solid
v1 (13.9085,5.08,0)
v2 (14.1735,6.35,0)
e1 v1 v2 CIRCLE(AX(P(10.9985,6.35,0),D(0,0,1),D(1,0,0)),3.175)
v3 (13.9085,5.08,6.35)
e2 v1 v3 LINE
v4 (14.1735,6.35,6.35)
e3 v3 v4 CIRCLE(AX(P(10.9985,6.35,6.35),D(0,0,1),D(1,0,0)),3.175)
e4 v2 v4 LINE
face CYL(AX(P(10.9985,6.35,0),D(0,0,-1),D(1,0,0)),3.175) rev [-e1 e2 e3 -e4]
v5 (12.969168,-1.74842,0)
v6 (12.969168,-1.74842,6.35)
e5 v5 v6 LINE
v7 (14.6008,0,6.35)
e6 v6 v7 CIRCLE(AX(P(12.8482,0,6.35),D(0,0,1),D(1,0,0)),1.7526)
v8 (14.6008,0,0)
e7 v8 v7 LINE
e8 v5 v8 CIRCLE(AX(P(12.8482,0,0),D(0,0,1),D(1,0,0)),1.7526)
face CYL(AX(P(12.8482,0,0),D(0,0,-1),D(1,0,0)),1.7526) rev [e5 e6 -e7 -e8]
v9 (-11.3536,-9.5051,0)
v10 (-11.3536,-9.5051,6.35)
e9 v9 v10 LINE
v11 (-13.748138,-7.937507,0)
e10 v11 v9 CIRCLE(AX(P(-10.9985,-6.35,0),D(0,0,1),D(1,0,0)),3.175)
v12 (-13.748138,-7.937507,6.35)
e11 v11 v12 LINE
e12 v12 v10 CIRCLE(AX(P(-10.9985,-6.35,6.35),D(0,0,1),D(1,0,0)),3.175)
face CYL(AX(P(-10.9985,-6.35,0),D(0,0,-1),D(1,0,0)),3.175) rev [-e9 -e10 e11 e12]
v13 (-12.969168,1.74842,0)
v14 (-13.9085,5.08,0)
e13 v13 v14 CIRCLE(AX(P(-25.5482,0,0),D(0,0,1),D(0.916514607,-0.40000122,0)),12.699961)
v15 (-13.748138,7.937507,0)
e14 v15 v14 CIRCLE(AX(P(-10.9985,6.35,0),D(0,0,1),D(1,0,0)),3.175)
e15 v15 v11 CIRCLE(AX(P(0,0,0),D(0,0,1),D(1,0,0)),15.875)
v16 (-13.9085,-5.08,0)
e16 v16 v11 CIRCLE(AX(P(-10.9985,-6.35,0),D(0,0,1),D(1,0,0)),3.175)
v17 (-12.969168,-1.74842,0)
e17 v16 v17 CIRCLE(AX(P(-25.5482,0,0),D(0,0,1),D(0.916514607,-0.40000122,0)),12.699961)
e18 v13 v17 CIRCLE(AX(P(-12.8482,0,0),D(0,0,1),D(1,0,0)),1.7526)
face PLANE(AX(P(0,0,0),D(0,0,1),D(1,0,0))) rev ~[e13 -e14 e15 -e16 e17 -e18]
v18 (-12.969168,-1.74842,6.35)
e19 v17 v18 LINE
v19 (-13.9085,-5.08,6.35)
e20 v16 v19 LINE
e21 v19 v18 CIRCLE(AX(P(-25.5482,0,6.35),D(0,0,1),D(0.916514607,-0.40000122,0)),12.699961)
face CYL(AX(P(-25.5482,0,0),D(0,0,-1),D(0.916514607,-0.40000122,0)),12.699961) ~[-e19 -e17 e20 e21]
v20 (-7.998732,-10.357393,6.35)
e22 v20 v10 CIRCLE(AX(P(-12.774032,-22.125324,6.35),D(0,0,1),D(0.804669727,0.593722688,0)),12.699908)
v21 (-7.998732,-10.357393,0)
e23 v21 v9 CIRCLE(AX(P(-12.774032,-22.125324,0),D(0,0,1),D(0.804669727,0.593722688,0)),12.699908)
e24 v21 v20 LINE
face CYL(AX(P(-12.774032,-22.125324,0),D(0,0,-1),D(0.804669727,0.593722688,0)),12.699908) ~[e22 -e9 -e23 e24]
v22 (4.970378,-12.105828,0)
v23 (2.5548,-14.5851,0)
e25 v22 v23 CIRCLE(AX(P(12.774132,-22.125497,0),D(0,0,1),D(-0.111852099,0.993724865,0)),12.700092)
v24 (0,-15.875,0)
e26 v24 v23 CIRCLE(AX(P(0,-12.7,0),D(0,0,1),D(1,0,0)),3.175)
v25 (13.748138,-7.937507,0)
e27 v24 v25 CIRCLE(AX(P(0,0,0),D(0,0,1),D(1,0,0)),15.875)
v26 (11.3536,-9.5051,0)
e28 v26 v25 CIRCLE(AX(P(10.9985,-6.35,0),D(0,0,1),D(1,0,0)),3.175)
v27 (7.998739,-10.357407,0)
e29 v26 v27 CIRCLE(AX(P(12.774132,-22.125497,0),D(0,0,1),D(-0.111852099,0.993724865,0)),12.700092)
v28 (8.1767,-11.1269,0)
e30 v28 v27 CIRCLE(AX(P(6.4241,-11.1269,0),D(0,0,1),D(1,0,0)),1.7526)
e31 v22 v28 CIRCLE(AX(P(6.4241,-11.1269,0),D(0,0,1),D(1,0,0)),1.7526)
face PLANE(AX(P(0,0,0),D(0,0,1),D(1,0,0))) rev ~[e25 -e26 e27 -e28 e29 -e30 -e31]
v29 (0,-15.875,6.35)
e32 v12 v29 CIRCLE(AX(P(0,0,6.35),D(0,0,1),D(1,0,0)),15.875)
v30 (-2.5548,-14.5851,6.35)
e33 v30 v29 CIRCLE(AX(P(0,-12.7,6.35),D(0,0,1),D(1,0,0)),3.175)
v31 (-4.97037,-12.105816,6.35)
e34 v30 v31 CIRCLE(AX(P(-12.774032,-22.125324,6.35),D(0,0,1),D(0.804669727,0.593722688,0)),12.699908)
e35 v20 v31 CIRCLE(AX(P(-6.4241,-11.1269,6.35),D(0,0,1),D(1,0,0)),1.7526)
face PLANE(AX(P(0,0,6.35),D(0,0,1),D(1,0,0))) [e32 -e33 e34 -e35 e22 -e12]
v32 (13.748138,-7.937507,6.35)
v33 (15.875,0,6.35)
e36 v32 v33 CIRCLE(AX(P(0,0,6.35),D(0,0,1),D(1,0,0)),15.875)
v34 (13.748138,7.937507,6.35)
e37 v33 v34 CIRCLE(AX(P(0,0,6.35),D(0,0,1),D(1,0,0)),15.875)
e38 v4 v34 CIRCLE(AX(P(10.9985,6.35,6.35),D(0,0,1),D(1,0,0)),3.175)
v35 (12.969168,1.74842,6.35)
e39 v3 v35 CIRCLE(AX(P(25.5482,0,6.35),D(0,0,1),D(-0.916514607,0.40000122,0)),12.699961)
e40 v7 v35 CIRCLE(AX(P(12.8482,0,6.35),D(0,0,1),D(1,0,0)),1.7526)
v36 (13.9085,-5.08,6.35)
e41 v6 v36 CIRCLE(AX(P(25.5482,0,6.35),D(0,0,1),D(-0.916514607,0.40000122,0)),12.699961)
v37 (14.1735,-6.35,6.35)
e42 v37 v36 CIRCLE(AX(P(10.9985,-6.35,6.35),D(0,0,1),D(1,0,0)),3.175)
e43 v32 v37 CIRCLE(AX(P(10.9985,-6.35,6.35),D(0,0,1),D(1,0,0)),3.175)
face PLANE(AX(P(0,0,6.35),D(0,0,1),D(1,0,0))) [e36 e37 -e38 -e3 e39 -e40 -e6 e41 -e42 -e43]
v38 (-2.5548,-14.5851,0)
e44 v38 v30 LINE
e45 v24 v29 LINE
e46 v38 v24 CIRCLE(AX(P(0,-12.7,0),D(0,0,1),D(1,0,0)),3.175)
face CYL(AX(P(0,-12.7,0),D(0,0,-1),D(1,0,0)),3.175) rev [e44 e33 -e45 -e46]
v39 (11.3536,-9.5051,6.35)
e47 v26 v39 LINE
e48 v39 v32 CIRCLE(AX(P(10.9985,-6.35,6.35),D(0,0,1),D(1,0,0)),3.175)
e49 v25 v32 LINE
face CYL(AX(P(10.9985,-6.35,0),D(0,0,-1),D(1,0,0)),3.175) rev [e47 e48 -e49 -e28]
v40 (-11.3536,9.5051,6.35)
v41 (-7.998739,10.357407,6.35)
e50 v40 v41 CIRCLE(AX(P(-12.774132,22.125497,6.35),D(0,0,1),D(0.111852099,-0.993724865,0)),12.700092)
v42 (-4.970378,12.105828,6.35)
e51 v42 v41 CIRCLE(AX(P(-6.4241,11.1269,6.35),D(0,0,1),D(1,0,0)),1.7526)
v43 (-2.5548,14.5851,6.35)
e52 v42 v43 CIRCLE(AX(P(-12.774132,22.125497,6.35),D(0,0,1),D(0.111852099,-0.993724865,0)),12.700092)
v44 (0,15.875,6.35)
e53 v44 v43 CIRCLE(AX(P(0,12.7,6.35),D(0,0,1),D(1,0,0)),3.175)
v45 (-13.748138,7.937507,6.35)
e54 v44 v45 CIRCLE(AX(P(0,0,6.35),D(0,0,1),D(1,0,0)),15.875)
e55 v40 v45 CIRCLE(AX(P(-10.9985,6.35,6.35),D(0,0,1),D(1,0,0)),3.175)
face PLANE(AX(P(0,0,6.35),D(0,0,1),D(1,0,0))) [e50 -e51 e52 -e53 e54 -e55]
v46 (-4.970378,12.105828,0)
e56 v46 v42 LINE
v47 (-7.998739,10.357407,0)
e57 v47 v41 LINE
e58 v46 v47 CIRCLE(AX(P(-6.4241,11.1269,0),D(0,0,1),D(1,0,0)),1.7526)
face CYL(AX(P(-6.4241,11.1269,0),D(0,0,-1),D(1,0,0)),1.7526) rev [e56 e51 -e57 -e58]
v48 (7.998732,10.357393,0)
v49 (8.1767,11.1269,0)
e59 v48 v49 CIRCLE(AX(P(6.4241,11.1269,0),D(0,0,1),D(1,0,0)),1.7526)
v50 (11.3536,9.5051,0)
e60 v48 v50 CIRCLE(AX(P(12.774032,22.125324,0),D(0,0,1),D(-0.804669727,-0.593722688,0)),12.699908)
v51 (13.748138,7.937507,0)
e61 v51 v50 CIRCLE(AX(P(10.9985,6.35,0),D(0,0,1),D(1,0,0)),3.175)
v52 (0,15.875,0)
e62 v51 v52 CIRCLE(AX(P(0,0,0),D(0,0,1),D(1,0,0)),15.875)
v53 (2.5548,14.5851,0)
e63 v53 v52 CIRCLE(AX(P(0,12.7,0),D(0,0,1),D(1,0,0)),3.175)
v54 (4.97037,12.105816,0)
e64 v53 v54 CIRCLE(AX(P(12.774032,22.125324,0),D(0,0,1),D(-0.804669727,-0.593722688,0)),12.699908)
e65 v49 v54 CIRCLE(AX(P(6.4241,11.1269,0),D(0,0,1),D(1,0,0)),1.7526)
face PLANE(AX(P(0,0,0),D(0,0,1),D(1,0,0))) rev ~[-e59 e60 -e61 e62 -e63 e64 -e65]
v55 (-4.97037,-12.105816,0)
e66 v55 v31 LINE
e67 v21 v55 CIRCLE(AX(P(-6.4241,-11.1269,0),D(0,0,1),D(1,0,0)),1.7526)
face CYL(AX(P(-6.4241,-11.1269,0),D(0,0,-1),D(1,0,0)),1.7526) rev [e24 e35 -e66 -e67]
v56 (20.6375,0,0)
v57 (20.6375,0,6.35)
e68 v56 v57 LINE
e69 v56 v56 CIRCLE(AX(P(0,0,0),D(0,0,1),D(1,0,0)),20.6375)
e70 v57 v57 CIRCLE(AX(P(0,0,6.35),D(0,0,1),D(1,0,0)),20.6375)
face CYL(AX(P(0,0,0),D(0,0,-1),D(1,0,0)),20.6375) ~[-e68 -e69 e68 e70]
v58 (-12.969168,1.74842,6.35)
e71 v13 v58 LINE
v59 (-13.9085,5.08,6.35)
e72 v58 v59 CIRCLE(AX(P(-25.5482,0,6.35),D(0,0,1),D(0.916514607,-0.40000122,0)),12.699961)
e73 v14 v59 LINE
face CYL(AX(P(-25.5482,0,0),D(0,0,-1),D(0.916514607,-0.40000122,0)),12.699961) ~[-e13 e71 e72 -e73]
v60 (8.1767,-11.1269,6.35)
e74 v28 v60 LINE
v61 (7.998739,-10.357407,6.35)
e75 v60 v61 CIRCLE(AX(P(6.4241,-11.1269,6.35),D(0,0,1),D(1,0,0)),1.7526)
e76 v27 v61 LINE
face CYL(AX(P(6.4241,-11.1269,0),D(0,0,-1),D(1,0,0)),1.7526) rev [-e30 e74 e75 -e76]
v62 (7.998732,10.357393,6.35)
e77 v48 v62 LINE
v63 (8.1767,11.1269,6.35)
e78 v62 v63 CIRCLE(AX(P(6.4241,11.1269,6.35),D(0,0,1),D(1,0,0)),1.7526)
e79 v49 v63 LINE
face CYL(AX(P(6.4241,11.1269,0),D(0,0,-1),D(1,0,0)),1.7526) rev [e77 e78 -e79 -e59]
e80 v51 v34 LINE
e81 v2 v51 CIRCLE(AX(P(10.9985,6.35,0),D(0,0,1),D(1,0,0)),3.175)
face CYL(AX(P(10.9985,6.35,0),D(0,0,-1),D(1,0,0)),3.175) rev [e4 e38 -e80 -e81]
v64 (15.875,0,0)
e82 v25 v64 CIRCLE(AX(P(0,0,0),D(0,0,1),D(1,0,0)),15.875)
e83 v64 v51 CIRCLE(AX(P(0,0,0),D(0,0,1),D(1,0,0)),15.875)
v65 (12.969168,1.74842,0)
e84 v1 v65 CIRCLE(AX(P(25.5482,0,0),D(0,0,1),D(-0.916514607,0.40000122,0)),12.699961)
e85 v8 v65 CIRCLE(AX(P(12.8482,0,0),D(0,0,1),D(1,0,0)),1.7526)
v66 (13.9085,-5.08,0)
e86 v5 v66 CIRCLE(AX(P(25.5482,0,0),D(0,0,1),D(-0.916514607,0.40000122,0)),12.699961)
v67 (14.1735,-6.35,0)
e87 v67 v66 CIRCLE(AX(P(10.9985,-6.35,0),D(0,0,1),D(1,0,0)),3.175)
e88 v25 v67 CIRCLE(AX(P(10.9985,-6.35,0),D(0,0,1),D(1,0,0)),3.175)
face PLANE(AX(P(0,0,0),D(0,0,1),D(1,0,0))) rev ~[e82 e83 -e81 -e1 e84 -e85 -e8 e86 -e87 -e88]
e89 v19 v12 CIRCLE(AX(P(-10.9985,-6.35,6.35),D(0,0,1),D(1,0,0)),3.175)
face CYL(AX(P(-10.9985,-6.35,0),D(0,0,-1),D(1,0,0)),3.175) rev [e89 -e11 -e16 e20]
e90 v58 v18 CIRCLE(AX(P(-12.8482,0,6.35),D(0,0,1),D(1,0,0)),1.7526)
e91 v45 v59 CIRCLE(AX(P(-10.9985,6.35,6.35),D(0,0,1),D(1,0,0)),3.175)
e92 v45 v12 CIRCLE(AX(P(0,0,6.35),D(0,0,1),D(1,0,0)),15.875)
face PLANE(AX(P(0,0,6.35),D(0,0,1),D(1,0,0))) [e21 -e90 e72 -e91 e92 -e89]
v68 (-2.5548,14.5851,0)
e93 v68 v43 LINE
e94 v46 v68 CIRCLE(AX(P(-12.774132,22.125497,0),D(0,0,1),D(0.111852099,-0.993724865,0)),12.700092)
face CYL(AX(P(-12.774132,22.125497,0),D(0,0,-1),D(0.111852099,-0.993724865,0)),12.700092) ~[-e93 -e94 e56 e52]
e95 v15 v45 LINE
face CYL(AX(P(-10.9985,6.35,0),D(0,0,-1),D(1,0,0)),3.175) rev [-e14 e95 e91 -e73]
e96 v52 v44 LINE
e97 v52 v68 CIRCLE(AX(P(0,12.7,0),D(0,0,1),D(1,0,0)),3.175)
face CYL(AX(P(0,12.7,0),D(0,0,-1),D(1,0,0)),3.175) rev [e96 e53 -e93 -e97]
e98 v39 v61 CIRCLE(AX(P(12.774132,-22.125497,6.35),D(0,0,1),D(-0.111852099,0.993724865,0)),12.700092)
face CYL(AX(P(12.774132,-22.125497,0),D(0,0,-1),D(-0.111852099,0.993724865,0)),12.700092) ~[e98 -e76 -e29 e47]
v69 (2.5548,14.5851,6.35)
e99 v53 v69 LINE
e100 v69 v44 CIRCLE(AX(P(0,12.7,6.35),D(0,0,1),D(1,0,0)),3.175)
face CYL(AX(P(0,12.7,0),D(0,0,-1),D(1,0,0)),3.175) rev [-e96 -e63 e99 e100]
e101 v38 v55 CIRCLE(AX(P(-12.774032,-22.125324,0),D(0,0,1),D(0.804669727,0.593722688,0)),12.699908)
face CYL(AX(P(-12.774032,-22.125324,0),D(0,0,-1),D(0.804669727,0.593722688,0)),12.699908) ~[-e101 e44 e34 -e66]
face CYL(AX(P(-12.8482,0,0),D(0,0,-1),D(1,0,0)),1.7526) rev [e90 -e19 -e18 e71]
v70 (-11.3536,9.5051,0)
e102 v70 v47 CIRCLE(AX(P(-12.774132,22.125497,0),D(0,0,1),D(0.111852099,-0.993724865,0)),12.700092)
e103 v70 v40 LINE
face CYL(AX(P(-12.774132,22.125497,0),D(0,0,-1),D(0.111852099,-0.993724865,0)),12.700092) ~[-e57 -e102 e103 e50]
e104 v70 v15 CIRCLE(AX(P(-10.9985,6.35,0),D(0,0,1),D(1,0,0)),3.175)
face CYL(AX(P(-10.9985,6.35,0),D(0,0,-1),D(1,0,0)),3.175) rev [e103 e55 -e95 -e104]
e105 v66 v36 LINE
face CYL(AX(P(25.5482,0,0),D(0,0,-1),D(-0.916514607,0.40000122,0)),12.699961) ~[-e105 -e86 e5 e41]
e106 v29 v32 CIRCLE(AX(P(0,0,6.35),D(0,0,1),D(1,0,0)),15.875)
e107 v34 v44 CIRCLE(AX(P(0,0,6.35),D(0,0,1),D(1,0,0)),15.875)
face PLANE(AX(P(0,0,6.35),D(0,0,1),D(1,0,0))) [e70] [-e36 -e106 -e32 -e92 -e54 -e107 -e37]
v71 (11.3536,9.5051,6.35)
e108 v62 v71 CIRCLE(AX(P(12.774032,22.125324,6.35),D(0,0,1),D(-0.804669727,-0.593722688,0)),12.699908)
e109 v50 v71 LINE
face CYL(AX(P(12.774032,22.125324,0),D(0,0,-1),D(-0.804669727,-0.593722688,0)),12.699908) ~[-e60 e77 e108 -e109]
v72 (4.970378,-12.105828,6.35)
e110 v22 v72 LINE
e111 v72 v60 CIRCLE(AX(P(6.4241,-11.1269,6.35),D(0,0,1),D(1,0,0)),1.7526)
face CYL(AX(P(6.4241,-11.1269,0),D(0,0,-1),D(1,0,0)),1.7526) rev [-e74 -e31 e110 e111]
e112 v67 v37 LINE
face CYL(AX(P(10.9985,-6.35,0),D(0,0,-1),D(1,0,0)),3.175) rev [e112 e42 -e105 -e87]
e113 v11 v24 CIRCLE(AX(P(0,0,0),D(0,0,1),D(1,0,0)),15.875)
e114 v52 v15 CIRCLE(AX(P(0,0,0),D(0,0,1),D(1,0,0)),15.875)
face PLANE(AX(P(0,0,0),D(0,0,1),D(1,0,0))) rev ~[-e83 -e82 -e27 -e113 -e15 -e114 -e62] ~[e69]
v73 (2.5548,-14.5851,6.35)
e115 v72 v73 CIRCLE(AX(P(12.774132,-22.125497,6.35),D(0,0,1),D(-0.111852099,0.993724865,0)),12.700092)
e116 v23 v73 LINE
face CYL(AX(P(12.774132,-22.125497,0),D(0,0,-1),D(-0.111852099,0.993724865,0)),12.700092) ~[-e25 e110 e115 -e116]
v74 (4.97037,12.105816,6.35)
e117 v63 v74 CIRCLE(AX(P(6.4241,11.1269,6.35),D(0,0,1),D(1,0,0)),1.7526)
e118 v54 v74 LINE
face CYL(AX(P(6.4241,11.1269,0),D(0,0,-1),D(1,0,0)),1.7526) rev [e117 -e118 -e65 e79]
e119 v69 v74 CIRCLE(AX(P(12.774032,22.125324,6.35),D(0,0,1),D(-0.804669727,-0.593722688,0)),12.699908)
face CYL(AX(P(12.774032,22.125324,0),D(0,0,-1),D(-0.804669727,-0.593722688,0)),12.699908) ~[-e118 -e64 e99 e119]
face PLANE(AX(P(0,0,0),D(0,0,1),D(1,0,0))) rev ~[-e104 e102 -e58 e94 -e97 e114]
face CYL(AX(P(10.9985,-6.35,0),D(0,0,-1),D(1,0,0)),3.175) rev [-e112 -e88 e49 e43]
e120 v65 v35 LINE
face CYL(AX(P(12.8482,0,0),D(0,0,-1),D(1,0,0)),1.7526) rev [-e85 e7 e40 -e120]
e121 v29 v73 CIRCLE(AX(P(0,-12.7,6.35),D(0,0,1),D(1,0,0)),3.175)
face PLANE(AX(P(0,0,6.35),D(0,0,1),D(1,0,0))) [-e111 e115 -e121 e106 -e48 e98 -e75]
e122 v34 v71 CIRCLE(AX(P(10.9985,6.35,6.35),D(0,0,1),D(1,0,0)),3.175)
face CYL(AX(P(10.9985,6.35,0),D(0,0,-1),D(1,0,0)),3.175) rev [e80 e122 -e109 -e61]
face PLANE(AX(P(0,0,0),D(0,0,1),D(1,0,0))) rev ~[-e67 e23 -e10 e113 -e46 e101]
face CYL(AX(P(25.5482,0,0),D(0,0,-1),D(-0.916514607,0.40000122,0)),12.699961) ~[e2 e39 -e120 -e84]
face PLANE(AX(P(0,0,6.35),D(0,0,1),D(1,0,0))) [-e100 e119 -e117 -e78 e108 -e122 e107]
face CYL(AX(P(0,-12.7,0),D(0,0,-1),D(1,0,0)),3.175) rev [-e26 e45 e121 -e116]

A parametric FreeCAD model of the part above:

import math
import FreeCAD as App
import Part
import Sketcher
from FreeCAD import Vector
Q = App.Units.Quantity

doc = App.newDocument("Part")
body = doc.addObject("PartDesign::Body", "Body")

sketch1 = body.newObject("Sketcher::SketchObject", "Sketch")
sketch1.AttachmentSupport = (doc.getObject("XY_Plane"), [""])
sketch1.MapMode = "FlatFace"
sketch1.addGeometry(Part.Circle(Vector(0, 0, 0), Vector(0, 0, 1), 20.6), False)
sketch1.addGeometry(Part.ArcOfCircle(Part.Circle(Vector(25.5, 0, 0), Vector(0, 0, 1), 12.7), math.radians(156.42), math.radians(172.09)), False)
sketch1.addGeometry(Part.ArcOfCircle(Part.Circle(Vector(12.8, 0, 0), Vector(0, 0, 1), 1.8), math.radians(-86), math.radians(86)), False)
sketch1.addGeometry(Part.ArcOfCircle(Part.Circle(Vector(25.5, 0, 0), Vector(0, 0, 1), 12.7), math.radians(-172.09), math.radians(-156.42)), False)
sketch1.addGeometry(Part.ArcOfCircle(Part.Circle(Vector(11, -6.3, 0), Vector(0, 0, 1), 3.2), math.radians(-84), math.radians(24)), False)
sketch1.addGeometry(Part.ArcOfCircle(Part.Circle(Vector(12.8, -22.1, 0), Vector(0, 0, 1), 12.7), math.radians(96.42), math.radians(112.09)), False)
sketch1.addGeometry(Part.ArcOfCircle(Part.Circle(Vector(6.4, -11.1, 0), Vector(0, 0, 1), 1.8), math.radians(-146), math.radians(26)), False)
sketch1.addGeometry(Part.ArcOfCircle(Part.Circle(Vector(12.8, -22.1, 0), Vector(0, 0, 1), 12.7), math.radians(127.91), math.radians(143.58)), False)
sketch1.addGeometry(Part.ArcOfCircle(Part.Circle(Vector(0, -12.7, 0), Vector(0, 0, 1), 3.2), math.radians(-144), math.radians(-36)), False)
sketch1.addGeometry(Part.ArcOfCircle(Part.Circle(Vector(-12.8, -22.1, 0), Vector(0, 0, 1), 12.7), math.radians(36.42), math.radians(52.09)), False)
sketch1.addGeometry(Part.ArcOfCircle(Part.Circle(Vector(-6.4, -11.1, 0), Vector(0, 0, 1), 1.8), math.radians(154), math.radians(326)), False)
sketch1.addGeometry(Part.ArcOfCircle(Part.Circle(Vector(-12.8, -22.1, 0), Vector(0, 0, 1), 12.7), math.radians(67.91), math.radians(83.58)), False)
sketch1.addGeometry(Part.ArcOfCircle(Part.Circle(Vector(-11, -6.3, 0), Vector(0, 0, 1), 3.2), math.radians(156), math.radians(264)), False)
sketch1.addGeometry(Part.ArcOfCircle(Part.Circle(Vector(-25.5, 0, 0), Vector(0, 0, 1), 12.7), math.radians(-23.58), math.radians(-7.91)), False)
sketch1.addGeometry(Part.ArcOfCircle(Part.Circle(Vector(-12.8, 0, 0), Vector(0, 0, 1), 1.8), math.radians(94), math.radians(266)), False)
sketch1.addGeometry(Part.ArcOfCircle(Part.Circle(Vector(-25.5, 0, 0), Vector(0, 0, 1), 12.7), math.radians(7.91), math.radians(23.58)), False)
sketch1.addGeometry(Part.ArcOfCircle(Part.Circle(Vector(-11, 6.3, 0), Vector(0, 0, 1), 3.2), math.radians(96), math.radians(204)), False)
sketch1.addGeometry(Part.ArcOfCircle(Part.Circle(Vector(-12.8, 22.1, 0), Vector(0, 0, 1), 12.7), math.radians(-83.58), math.radians(-67.91)), False)
sketch1.addGeometry(Part.ArcOfCircle(Part.Circle(Vector(-6.4, 11.1, 0), Vector(0, 0, 1), 1.8), math.radians(34), math.radians(206)), False)
sketch1.addGeometry(Part.ArcOfCircle(Part.Circle(Vector(-12.8, 22.1, 0), Vector(0, 0, 1), 12.7), math.radians(-52.09), math.radians(-36.42)), False)
sketch1.addGeometry(Part.ArcOfCircle(Part.Circle(Vector(0, 12.7, 0), Vector(0, 0, 1), 3.2), math.radians(36), math.radians(144)), False)
sketch1.addGeometry(Part.ArcOfCircle(Part.Circle(Vector(12.8, 22.1, 0), Vector(0, 0, 1), 12.7), math.radians(-143.58), math.radians(-127.91)), False)
sketch1.addGeometry(Part.ArcOfCircle(Part.Circle(Vector(6.4, 11.1, 0), Vector(0, 0, 1), 1.8), math.radians(-26), math.radians(146)), False)
sketch1.addGeometry(Part.ArcOfCircle(Part.Circle(Vector(12.8, 22.1, 0), Vector(0, 0, 1), 12.7), math.radians(-112.09), math.radians(-96.42)), False)
sketch1.addGeometry(Part.ArcOfCircle(Part.Circle(Vector(11, 6.3, 0), Vector(0, 0, 1), 3.2), math.radians(-24), math.radians(84)), False)
sketch1.addConstraint(Sketcher.Constraint("Coincident", 1, 2, 2, 2))
sketch1.addConstraint(Sketcher.Constraint("Coincident", 2, 1, 3, 1))
sketch1.addConstraint(Sketcher.Constraint("Tangent", 3, 2, 4, 2))
sketch1.addConstraint(Sketcher.Constraint("Tangent", 4, 1, 5, 1))
sketch1.addConstraint(Sketcher.Constraint("Coincident", 5, 2, 6, 2))
sketch1.addConstraint(Sketcher.Constraint("Coincident", 6, 1, 7, 1))
sketch1.addConstraint(Sketcher.Constraint("Tangent", 7, 2, 8, 2))
sketch1.addConstraint(Sketcher.Constraint("Tangent", 8, 1, 9, 1))
sketch1.addConstraint(Sketcher.Constraint("Coincident", 9, 2, 10, 2))
sketch1.addConstraint(Sketcher.Constraint("Coincident", 10, 1, 11, 1))
sketch1.addConstraint(Sketcher.Constraint("Tangent", 11, 2, 12, 2))
sketch1.addConstraint(Sketcher.Constraint("Tangent", 12, 1, 13, 1))
sketch1.addConstraint(Sketcher.Constraint("Coincident", 13, 2, 14, 2))
sketch1.addConstraint(Sketcher.Constraint("Coincident", 14, 1, 15, 1))
sketch1.addConstraint(Sketcher.Constraint("Tangent", 15, 2, 16, 2))
sketch1.addConstraint(Sketcher.Constraint("Tangent", 16, 1, 17, 1))
sketch1.addConstraint(Sketcher.Constraint("Coincident", 17, 2, 18, 2))
sketch1.addConstraint(Sketcher.Constraint("Coincident", 18, 1, 19, 1))
sketch1.addConstraint(Sketcher.Constraint("Tangent", 19, 2, 20, 2))
sketch1.addConstraint(Sketcher.Constraint("Tangent", 20, 1, 21, 1))
sketch1.addConstraint(Sketcher.Constraint("Coincident", 21, 2, 22, 2))
sketch1.addConstraint(Sketcher.Constraint("Coincident", 22, 1, 23, 1))
sketch1.addConstraint(Sketcher.Constraint("Tangent", 23, 2, 24, 2))
sketch1.addConstraint(Sketcher.Constraint("Tangent", 24, 1, 1, 1))
sketch1.addConstraint(Sketcher.Constraint("Coincident", 0, 3, -1, 1))
sketch1.addConstraint(Sketcher.Constraint("Coincident", 3, 3, 1, 3))
sketch1.addConstraint(Sketcher.Constraint("Coincident", 7, 3, 5, 3))
sketch1.addConstraint(Sketcher.Constraint("Coincident", 11, 3, 9, 3))
sketch1.addConstraint(Sketcher.Constraint("Coincident", 15, 3, 13, 3))
sketch1.addConstraint(Sketcher.Constraint("Coincident", 19, 3, 17, 3))
sketch1.addConstraint(Sketcher.Constraint("Coincident", 23, 3, 21, 3))
sketch1.addConstraint(Sketcher.Constraint("Equal", 1, 3))
sketch1.addConstraint(Sketcher.Constraint("Equal", 3, 5))
sketch1.addConstraint(Sketcher.Constraint("Equal", 2, 6))
sketch1.addConstraint(Sketcher.Constraint("Equal", 5, 7))
sketch1.addConstraint(Sketcher.Constraint("Equal", 4, 8))
sketch1.addConstraint(Sketcher.Constraint("Equal", 7, 9))
sketch1.addConstraint(Sketcher.Constraint("Equal", 6, 10))
sketch1.addConstraint(Sketcher.Constraint("Equal", 9, 11))
sketch1.addConstraint(Sketcher.Constraint("Equal", 8, 12))
sketch1.addConstraint(Sketcher.Constraint("Equal", 11, 13))
sketch1.addConstraint(Sketcher.Constraint("Equal", 10, 14))
sketch1.addConstraint(Sketcher.Constraint("Equal", 13, 15))
sketch1.addConstraint(Sketcher.Constraint("Equal", 12, 16))
sketch1.addConstraint(Sketcher.Constraint("Equal", 15, 17))
sketch1.addConstraint(Sketcher.Constraint("Equal", 14, 18))
sketch1.addConstraint(Sketcher.Constraint("Equal", 17, 19))
sketch1.addConstraint(Sketcher.Constraint("Equal", 16, 20))
sketch1.addConstraint(Sketcher.Constraint("Equal", 19, 21))
sketch1.addConstraint(Sketcher.Constraint("Equal", 18, 22))
sketch1.addConstraint(Sketcher.Constraint("Equal", 21, 23))
sketch1.addConstraint(Sketcher.Constraint("Equal", 20, 24))
sketch1.addConstraint(Sketcher.Constraint("Symmetric", 1, 3, 13, 3, -1, 1))
sketch1.addConstraint(Sketcher.Constraint("Symmetric", 2, 3, 14, 3, -1, 1))
sketch1.addConstraint(Sketcher.Constraint("Symmetric", 5, 3, 17, 3, -1, 1))
sketch1.addConstraint(Sketcher.Constraint("Symmetric", 6, 3, 18, 3, -1, 1))
sketch1.addConstraint(Sketcher.Constraint("Symmetric", 9, 3, 21, 3, -1, 1))
sketch1.addConstraint(Sketcher.Constraint("Symmetric", 10, 3, 22, 3, -1, 1))
sketch1.addConstraint(Sketcher.Constraint("Symmetric", 5, 3, 9, 3, -2))
sketch1.addConstraint(Sketcher.Constraint("Symmetric", 6, 3, 10, 3, -2))
sketch1.addConstraint(Sketcher.Constraint("Symmetric", 2, 1, 13, 2, -2))
sketch1.addConstraint(Sketcher.Constraint("Radius", 1, Q("0.5 in")))
sketch1.addConstraint(Sketcher.Constraint("Diameter", 0, Q("1.625 in")))
sketch1.addConstraint(Sketcher.Constraint("Radius", 2, Q("0.069 in")))
sketch1.addConstraint(Sketcher.Constraint("Radius", 4, Q("0.125 in")))
sketch1.addConstraint(Sketcher.Constraint("DistanceY", 8, 3, -1, 1, Q("0.5 in")))
sketch1.addConstraint(Sketcher.Constraint("DistanceX", 2, 3, 1, 3, Q("0.5 in")))
sketch1.addConstraint(Sketcher.Constraint("DistanceY", 12, 3, 16, 3, Q("0.5 in")))
sketch1.addConstraint(Sketcher.Constraint("DistanceX", 6, 3, 5, 3, Q("0.25 in")))
sketch1.addConstraint(Sketcher.Constraint("DistanceX", -1, 1, 4, 3, Q("0.433 in")))
sketch1.addConstraint(Sketcher.Constraint("DistanceY", 5, 3, 6, 3, Q("0.433 in")))
pad1 = body.newObject("PartDesign::Pad", "Pad")
pad1.Profile = sketch1
pad1.Length = Q("0.25 in")

doc.recompute()
